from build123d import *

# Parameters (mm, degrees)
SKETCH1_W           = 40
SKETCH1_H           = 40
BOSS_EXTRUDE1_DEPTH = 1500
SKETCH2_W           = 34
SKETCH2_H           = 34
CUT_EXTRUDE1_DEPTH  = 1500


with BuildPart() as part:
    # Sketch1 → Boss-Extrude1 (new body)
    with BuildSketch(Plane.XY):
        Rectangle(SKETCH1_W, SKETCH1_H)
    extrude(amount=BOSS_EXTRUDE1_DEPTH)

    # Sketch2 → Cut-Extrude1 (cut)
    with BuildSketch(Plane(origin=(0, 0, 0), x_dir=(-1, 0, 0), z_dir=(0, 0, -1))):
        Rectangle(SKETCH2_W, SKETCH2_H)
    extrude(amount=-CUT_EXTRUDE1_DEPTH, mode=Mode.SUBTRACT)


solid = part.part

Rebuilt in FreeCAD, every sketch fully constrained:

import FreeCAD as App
import Part
import Sketcher

V = App.Vector

doc = App.newDocument("Part")
body = doc.addObject("PartDesign::Body", "Body")

# Sketch on XY plane
sketch1 = body.newObject("Sketcher::SketchObject", "Sketch")
sketch1.AttachmentSupport = (doc.getObject("XY_Plane"), [""])
sketch1.MapMode = "FlatFace"
sketch1.addGeometry([
    Part.LineSegment(V(-20, 20, 0), V(-20, -20, 0)),
    Part.LineSegment(V(-20, -20, 0), V(20, -20, 0)),
    Part.LineSegment(V(20, -20, 0), V(20, 20, 0)),
    Part.LineSegment(V(20, 20, 0), V(-20, 20, 0)),
], False)
sketch1.addConstraint([
    Sketcher.Constraint("Coincident", 0, 2, 1, 1),
    Sketcher.Constraint("Coincident", 1, 2, 2, 1),
    Sketcher.Constraint("Coincident", 2, 2, 3, 1),
    Sketcher.Constraint("Coincident", 3, 2, 0, 1),
    Sketcher.Constraint("Vertical", 0),
    Sketcher.Constraint("Horizontal", 1),
    Sketcher.Constraint("Vertical", 2),
    Sketcher.Constraint("Horizontal", 3),
    Sketcher.Constraint("Symmetric", 0, 2, 2, 2, -1, 1),
    Sketcher.Constraint("Equal", 3, 0),
    Sketcher.Constraint("DistanceX", 1, 1, 1, 2, 40.0),
])
pad1 = body.newObject("PartDesign::Pad", "Pad")
pad1.Profile = sketch1
pad1.Length = 1500

# Sketch on XY plane
sketch2 = body.newObject("Sketcher::SketchObject", "Sketch001")
sketch2.AttachmentSupport = (doc.getObject("XY_Plane"), [""])
sketch2.MapMode = "FlatFace"
sketch2.addGeometry([
    Part.LineSegment(V(17, 17, 0), V(17, -17, 0)),
    Part.LineSegment(V(17, -17, 0), V(-17, -17, 0)),
    Part.LineSegment(V(-17, -17, 0), V(-17, 17, 0)),
    Part.LineSegment(V(-17, 17, 0), V(17, 17, 0)),
], False)
sketch2.addConstraint([
    Sketcher.Constraint("Coincident", 0, 2, 1, 1),
    Sketcher.Constraint("Coincident", 1, 2, 2, 1),
    Sketcher.Constraint("Coincident", 2, 2, 3, 1),
    Sketcher.Constraint("Coincident", 3, 2, 0, 1),
    Sketcher.Constraint("Vertical", 0),
    Sketcher.Constraint("Horizontal", 1),
    Sketcher.Constraint("Vertical", 2),
    Sketcher.Constraint("Horizontal", 3),
    Sketcher.Constraint("Symmetric", 0, 2, 2, 2, -1, 1),
    Sketcher.Constraint("Equal", 3, 0),
    Sketcher.Constraint("DistanceX", 1, 2, 1, 1, 34.0),
])
pocket1 = body.newObject("PartDesign::Pocket", "Pocket")
pocket1.Profile = sketch2
pocket1.Length = 1500
pocket1.Reversed = True

doc.recompute()
